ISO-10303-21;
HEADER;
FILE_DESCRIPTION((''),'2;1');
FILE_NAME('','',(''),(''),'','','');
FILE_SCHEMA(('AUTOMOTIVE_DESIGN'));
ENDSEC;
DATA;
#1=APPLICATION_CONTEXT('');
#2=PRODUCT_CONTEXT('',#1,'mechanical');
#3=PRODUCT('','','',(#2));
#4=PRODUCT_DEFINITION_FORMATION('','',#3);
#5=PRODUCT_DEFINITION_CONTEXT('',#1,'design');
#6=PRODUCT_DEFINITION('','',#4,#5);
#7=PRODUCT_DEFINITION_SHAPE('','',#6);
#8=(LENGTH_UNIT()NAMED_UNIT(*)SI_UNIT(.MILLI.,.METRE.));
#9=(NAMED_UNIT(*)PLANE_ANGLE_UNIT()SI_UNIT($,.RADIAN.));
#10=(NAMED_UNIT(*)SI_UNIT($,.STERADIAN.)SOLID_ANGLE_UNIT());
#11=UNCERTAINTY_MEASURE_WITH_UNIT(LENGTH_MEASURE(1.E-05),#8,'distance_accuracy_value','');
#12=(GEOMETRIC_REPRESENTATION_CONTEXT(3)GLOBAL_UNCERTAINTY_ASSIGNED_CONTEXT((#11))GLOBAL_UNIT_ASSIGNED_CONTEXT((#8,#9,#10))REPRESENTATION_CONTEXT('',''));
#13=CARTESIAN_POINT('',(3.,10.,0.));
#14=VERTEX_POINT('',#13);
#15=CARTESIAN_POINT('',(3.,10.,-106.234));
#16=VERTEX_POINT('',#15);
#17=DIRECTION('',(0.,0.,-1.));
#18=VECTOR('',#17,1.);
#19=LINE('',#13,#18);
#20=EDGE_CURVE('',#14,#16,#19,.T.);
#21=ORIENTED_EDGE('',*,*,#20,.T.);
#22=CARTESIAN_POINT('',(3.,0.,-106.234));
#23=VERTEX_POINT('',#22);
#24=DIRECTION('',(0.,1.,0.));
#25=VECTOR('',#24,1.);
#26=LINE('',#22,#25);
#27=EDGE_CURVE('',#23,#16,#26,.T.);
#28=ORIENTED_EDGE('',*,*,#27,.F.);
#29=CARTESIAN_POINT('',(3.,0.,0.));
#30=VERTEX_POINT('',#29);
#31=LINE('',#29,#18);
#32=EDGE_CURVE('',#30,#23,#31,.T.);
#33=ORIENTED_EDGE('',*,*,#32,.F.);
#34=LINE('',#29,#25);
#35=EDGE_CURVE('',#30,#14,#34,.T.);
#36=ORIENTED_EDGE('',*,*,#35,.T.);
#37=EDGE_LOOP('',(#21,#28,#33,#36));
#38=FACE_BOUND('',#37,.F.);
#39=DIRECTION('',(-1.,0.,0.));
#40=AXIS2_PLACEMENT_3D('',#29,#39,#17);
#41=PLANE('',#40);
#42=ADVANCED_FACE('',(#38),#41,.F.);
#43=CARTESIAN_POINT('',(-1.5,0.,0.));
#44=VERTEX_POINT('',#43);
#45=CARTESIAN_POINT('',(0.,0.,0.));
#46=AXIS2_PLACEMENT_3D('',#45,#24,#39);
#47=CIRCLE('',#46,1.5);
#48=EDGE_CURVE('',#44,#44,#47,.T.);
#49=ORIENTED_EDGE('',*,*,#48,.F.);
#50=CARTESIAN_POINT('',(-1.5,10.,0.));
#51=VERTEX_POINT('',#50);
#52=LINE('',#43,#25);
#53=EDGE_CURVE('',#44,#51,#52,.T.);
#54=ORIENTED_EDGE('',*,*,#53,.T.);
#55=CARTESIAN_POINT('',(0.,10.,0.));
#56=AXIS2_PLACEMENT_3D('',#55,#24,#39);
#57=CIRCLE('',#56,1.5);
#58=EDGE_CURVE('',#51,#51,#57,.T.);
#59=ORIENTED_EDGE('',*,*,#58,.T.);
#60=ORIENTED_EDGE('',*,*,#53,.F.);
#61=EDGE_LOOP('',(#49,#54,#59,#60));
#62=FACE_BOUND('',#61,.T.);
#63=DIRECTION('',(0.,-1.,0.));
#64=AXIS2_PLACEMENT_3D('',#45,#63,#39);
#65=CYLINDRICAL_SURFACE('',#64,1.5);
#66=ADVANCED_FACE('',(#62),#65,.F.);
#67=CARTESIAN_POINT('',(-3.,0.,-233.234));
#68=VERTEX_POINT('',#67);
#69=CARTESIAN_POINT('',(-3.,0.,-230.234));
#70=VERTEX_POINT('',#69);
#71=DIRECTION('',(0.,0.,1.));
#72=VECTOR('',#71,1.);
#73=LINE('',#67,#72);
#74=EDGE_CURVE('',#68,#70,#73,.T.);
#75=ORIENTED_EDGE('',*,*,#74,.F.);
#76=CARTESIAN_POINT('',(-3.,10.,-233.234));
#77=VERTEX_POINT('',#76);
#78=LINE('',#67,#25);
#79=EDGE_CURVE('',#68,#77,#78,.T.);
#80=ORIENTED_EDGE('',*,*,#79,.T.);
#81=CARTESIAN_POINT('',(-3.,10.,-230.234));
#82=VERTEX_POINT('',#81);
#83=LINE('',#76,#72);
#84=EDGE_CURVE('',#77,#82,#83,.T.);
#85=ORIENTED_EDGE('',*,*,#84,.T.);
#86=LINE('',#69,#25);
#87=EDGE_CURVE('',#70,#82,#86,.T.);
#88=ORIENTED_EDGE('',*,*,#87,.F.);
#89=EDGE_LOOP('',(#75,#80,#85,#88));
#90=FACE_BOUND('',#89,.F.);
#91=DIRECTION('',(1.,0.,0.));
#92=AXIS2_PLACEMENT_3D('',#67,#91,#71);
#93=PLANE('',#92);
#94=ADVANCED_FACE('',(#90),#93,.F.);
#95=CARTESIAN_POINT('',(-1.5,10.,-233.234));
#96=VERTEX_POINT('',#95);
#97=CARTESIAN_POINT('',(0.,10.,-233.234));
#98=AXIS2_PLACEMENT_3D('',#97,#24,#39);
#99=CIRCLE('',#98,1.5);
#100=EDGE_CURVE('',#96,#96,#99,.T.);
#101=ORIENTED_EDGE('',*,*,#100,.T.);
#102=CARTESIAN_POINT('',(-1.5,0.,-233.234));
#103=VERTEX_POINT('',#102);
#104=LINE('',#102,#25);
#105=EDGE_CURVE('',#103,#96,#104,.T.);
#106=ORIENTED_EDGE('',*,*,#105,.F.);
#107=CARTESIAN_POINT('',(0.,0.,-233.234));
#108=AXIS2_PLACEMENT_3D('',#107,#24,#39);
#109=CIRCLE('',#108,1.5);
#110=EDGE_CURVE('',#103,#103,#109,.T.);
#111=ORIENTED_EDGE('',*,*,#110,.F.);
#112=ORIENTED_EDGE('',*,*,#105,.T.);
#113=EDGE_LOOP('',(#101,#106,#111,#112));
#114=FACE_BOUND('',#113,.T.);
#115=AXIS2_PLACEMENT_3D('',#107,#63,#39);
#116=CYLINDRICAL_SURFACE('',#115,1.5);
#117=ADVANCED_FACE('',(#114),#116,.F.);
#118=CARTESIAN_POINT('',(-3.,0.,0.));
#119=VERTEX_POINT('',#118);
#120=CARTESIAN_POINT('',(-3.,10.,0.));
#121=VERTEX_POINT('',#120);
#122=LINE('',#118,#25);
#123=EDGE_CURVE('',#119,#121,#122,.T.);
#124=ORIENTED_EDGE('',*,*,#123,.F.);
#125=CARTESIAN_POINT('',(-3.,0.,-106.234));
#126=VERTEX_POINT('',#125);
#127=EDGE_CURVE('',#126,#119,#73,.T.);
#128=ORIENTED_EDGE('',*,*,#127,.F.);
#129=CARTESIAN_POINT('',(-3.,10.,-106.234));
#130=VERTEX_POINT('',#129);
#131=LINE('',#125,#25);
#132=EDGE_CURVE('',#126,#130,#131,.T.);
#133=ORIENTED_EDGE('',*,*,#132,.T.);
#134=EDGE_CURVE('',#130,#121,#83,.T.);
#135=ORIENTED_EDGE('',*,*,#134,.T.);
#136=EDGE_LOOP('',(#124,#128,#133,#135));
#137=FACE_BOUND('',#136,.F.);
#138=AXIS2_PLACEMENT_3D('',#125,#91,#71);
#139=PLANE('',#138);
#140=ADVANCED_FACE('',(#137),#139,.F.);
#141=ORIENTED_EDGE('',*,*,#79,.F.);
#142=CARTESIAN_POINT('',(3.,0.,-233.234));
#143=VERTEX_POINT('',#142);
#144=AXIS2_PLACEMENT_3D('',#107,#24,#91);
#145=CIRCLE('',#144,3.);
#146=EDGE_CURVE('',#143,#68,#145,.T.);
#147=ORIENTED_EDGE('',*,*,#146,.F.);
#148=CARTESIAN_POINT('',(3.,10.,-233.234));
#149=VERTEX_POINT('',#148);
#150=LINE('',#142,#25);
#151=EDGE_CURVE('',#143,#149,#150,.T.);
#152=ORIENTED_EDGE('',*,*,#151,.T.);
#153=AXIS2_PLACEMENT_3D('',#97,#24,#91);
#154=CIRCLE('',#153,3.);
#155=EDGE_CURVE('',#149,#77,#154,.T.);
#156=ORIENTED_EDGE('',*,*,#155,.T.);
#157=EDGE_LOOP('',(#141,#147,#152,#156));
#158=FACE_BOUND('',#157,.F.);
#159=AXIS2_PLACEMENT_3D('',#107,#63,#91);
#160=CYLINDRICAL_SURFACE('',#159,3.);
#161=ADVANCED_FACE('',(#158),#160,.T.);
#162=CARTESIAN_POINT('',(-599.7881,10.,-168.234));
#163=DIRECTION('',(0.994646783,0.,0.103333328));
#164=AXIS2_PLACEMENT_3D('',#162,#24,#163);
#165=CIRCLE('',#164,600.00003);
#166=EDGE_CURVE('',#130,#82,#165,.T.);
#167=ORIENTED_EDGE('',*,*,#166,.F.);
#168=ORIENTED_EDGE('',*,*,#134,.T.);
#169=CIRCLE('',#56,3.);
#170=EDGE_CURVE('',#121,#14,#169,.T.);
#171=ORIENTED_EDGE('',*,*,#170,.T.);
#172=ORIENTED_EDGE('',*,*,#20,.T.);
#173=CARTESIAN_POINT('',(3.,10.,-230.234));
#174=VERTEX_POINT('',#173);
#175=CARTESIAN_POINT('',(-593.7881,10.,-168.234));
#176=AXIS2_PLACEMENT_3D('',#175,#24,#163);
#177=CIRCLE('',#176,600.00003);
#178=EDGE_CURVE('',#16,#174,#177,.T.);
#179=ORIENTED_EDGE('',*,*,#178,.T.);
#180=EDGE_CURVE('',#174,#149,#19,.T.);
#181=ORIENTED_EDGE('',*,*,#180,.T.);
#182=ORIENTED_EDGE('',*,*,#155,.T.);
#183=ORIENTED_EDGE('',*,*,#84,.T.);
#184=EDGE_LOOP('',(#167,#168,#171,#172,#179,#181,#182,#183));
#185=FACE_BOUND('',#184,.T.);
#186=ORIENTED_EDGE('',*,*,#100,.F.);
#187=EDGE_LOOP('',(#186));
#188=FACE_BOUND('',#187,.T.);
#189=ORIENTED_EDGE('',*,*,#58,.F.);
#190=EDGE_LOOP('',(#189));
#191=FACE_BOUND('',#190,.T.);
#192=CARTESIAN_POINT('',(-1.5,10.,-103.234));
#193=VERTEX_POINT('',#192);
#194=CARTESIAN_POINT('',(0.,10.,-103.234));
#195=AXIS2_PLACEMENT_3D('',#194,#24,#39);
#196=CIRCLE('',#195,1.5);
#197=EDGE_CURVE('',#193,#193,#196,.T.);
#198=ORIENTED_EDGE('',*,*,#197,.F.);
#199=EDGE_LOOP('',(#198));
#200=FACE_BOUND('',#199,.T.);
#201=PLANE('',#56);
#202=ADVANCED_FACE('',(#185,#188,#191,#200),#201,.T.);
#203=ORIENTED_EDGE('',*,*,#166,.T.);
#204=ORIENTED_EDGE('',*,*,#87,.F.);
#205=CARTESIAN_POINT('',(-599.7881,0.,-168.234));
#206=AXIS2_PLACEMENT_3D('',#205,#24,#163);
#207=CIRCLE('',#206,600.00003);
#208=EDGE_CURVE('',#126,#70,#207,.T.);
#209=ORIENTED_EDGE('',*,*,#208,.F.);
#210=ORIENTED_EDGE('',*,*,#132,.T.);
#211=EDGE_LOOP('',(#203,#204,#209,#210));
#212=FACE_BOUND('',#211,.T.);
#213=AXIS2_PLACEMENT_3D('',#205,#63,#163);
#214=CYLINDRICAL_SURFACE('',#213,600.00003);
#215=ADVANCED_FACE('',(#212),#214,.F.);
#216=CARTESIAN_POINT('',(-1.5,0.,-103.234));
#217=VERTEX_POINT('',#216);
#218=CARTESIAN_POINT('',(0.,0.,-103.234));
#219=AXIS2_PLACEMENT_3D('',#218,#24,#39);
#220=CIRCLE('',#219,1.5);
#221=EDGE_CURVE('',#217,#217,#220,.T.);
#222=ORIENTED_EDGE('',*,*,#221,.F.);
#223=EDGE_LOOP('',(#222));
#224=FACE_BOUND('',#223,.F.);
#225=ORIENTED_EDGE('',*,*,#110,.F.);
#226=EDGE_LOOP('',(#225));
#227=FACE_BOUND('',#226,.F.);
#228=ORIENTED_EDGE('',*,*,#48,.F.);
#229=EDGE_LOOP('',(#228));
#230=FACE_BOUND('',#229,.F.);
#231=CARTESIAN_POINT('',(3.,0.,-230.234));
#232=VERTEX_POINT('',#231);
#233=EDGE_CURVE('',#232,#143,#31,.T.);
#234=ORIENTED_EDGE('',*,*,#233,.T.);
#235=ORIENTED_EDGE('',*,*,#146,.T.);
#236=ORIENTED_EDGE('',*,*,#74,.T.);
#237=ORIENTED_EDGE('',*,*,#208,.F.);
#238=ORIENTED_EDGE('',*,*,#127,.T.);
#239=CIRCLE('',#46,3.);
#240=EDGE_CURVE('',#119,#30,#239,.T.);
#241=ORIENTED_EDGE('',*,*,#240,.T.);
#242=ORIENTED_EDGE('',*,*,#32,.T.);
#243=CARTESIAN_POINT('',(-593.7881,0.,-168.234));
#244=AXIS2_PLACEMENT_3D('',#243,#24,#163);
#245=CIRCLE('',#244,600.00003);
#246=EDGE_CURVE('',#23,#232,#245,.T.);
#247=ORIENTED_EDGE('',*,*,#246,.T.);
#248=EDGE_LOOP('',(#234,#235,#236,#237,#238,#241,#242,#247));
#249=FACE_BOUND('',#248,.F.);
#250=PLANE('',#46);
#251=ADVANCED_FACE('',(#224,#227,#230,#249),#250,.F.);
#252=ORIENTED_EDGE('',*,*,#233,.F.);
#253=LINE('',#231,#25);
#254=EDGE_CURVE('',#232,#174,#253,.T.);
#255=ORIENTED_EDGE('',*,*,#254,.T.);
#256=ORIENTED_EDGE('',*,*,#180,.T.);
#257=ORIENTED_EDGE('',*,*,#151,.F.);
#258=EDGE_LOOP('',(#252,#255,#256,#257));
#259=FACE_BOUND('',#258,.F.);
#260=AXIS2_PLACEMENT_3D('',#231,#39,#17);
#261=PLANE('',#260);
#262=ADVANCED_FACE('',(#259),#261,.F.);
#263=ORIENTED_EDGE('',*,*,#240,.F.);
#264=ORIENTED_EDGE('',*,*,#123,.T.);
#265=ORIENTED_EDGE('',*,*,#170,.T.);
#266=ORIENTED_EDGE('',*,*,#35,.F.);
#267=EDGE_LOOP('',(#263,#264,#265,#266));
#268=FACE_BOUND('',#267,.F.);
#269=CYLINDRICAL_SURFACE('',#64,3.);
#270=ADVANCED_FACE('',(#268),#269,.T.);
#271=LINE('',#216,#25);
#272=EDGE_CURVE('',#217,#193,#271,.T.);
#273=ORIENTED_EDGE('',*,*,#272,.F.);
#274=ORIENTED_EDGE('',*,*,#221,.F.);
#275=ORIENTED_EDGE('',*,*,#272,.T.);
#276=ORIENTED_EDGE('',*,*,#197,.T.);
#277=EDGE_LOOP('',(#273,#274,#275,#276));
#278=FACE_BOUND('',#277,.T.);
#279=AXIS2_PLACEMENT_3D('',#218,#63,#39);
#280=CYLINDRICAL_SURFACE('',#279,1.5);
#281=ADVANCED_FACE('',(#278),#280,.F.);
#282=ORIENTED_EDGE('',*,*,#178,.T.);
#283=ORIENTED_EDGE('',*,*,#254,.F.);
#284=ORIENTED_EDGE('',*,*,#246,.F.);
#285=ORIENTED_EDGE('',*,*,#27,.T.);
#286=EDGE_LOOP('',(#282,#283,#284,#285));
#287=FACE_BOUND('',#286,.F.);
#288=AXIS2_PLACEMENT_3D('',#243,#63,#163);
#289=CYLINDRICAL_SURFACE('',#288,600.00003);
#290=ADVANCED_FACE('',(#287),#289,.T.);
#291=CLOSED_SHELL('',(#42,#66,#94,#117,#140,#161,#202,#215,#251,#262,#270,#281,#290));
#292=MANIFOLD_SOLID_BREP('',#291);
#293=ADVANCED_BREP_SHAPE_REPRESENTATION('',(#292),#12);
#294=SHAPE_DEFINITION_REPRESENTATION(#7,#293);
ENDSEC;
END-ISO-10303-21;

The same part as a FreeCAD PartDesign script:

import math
import FreeCAD as App
import Part
import Sketcher
from FreeCAD import Vector
Q = App.Units.Quantity

doc = App.newDocument("Part")
body = doc.addObject("PartDesign::Body", "Body")

# Sketch on XZ plane
sketch1 = body.newObject("Sketcher::SketchObject", "Sketch")
sketch1.AttachmentSupport = (doc.getObject("XZ_Plane"), [""])
sketch1.MapMode = "FlatFace"
sketch1.addGeometry([
    Part.ArcOfCircle(Part.Circle(Vector(0, 0, 0), Vector(0, 0, 1), 3), math.radians(0), math.radians(180)),  # 0
    Part.LineSegment(Vector(3, 0, 0), Vector(3, -106.234, 0)),  # 1
    Part.ArcOfCircle(Part.Circle(Vector(-593.7881, -168.234, 0), Vector(0, 0, 1), 600.00003), math.radians(-5.931151), math.radians(5.931151)),  # 2
    Part.LineSegment(Vector(3, -230.234, 0), Vector(3, -233.234, 0)),  # 3
    Part.ArcOfCircle(Part.Circle(Vector(0, -233.234, 0), Vector(0, 0, 1), 3), math.radians(180), math.radians(360)),  # 4
    Part.LineSegment(Vector(-3, -233.234, 0), Vector(-3, -230.234, 0)),  # 5
    Part.ArcOfCircle(Part.Circle(Vector(-599.7881, -168.234, 0), Vector(0, 0, 1), 600.00003), math.radians(-5.931151), math.radians(5.931151)),  # 6
    Part.LineSegment(Vector(-3, -106.234, 0), Vector(-3, 0, 0)),  # 7
    Part.Circle(Vector(0, -233.234, 0), Vector(0, 0, 1), 1.5),  # 8
    Part.Circle(Vector(0, -103.234, 0), Vector(0, 0, 1), 1.5),  # 9
    Part.Circle(Vector(0, 0, 0), Vector(0, 0, 1), 1.5),  # 10
], False)
sketch1.addConstraint([
    Sketcher.Constraint("Tangent", 0, 1, 1, 1),
    Sketcher.Constraint("Coincident", 1, 2, 2, 2),
    Sketcher.Constraint("Coincident", 2, 1, 3, 1),
    Sketcher.Constraint("Tangent", 3, 2, 4, 2),
    Sketcher.Constraint("Tangent", 4, 1, 5, 1),
    Sketcher.Constraint("Coincident", 5, 2, 6, 1),
    Sketcher.Constraint("Coincident", 6, 2, 7, 1),
    Sketcher.Constraint("Tangent", 7, 2, 0, 2),
    Sketcher.Constraint("Vertical", 1),
    Sketcher.Constraint("Vertical", 3),
    Sketcher.Constraint("Vertical", 5),
    Sketcher.Constraint("Vertical", 7),
    Sketcher.Constraint("Coincident", 0, 3, -1, 1),
    Sketcher.Constraint("Coincident", 10, 3, -1, 1),
    Sketcher.Constraint("Coincident", 8, 3, 4, 3),
    Sketcher.Constraint("Equal", 0, 4),
    Sketcher.Constraint("Equal", 2, 6),
    Sketcher.Constraint("Equal", 8, 9),
    Sketcher.Constraint("Equal", 9, 10),
    Sketcher.Constraint("Symmetric", 2, 1, 5, 2, -2),
    Sketcher.Constraint("PointOnObject", 9, 3, -2),
    Sketcher.Constraint("Horizontal", 2, 3, 6, 3),
    Sketcher.Constraint("Diameter", 8, Q("3 mm")),
    Sketcher.Constraint("Radius", 0, Q("3 mm")),
    Sketcher.Constraint("Radius", 2, Q("600 mm")),
    Sketcher.Constraint("DistanceY", 3, 2, 3, 1, Q("3 mm")),
    Sketcher.Constraint("DistanceY", 1, 2, 9, 3, Q("3 mm")),
    Sketcher.Constraint("DistanceY", 4, 3, -1, 1, Q("233.234 mm")),
    Sketcher.Constraint("DistanceY", 9, 3, -1, 1, Q("103.234 mm")),
])
pad1 = body.newObject("PartDesign::Pad", "Pad")
pad1.Profile = sketch1
pad1.Length = 10
pad1.Reversed = True

doc.recompute()
